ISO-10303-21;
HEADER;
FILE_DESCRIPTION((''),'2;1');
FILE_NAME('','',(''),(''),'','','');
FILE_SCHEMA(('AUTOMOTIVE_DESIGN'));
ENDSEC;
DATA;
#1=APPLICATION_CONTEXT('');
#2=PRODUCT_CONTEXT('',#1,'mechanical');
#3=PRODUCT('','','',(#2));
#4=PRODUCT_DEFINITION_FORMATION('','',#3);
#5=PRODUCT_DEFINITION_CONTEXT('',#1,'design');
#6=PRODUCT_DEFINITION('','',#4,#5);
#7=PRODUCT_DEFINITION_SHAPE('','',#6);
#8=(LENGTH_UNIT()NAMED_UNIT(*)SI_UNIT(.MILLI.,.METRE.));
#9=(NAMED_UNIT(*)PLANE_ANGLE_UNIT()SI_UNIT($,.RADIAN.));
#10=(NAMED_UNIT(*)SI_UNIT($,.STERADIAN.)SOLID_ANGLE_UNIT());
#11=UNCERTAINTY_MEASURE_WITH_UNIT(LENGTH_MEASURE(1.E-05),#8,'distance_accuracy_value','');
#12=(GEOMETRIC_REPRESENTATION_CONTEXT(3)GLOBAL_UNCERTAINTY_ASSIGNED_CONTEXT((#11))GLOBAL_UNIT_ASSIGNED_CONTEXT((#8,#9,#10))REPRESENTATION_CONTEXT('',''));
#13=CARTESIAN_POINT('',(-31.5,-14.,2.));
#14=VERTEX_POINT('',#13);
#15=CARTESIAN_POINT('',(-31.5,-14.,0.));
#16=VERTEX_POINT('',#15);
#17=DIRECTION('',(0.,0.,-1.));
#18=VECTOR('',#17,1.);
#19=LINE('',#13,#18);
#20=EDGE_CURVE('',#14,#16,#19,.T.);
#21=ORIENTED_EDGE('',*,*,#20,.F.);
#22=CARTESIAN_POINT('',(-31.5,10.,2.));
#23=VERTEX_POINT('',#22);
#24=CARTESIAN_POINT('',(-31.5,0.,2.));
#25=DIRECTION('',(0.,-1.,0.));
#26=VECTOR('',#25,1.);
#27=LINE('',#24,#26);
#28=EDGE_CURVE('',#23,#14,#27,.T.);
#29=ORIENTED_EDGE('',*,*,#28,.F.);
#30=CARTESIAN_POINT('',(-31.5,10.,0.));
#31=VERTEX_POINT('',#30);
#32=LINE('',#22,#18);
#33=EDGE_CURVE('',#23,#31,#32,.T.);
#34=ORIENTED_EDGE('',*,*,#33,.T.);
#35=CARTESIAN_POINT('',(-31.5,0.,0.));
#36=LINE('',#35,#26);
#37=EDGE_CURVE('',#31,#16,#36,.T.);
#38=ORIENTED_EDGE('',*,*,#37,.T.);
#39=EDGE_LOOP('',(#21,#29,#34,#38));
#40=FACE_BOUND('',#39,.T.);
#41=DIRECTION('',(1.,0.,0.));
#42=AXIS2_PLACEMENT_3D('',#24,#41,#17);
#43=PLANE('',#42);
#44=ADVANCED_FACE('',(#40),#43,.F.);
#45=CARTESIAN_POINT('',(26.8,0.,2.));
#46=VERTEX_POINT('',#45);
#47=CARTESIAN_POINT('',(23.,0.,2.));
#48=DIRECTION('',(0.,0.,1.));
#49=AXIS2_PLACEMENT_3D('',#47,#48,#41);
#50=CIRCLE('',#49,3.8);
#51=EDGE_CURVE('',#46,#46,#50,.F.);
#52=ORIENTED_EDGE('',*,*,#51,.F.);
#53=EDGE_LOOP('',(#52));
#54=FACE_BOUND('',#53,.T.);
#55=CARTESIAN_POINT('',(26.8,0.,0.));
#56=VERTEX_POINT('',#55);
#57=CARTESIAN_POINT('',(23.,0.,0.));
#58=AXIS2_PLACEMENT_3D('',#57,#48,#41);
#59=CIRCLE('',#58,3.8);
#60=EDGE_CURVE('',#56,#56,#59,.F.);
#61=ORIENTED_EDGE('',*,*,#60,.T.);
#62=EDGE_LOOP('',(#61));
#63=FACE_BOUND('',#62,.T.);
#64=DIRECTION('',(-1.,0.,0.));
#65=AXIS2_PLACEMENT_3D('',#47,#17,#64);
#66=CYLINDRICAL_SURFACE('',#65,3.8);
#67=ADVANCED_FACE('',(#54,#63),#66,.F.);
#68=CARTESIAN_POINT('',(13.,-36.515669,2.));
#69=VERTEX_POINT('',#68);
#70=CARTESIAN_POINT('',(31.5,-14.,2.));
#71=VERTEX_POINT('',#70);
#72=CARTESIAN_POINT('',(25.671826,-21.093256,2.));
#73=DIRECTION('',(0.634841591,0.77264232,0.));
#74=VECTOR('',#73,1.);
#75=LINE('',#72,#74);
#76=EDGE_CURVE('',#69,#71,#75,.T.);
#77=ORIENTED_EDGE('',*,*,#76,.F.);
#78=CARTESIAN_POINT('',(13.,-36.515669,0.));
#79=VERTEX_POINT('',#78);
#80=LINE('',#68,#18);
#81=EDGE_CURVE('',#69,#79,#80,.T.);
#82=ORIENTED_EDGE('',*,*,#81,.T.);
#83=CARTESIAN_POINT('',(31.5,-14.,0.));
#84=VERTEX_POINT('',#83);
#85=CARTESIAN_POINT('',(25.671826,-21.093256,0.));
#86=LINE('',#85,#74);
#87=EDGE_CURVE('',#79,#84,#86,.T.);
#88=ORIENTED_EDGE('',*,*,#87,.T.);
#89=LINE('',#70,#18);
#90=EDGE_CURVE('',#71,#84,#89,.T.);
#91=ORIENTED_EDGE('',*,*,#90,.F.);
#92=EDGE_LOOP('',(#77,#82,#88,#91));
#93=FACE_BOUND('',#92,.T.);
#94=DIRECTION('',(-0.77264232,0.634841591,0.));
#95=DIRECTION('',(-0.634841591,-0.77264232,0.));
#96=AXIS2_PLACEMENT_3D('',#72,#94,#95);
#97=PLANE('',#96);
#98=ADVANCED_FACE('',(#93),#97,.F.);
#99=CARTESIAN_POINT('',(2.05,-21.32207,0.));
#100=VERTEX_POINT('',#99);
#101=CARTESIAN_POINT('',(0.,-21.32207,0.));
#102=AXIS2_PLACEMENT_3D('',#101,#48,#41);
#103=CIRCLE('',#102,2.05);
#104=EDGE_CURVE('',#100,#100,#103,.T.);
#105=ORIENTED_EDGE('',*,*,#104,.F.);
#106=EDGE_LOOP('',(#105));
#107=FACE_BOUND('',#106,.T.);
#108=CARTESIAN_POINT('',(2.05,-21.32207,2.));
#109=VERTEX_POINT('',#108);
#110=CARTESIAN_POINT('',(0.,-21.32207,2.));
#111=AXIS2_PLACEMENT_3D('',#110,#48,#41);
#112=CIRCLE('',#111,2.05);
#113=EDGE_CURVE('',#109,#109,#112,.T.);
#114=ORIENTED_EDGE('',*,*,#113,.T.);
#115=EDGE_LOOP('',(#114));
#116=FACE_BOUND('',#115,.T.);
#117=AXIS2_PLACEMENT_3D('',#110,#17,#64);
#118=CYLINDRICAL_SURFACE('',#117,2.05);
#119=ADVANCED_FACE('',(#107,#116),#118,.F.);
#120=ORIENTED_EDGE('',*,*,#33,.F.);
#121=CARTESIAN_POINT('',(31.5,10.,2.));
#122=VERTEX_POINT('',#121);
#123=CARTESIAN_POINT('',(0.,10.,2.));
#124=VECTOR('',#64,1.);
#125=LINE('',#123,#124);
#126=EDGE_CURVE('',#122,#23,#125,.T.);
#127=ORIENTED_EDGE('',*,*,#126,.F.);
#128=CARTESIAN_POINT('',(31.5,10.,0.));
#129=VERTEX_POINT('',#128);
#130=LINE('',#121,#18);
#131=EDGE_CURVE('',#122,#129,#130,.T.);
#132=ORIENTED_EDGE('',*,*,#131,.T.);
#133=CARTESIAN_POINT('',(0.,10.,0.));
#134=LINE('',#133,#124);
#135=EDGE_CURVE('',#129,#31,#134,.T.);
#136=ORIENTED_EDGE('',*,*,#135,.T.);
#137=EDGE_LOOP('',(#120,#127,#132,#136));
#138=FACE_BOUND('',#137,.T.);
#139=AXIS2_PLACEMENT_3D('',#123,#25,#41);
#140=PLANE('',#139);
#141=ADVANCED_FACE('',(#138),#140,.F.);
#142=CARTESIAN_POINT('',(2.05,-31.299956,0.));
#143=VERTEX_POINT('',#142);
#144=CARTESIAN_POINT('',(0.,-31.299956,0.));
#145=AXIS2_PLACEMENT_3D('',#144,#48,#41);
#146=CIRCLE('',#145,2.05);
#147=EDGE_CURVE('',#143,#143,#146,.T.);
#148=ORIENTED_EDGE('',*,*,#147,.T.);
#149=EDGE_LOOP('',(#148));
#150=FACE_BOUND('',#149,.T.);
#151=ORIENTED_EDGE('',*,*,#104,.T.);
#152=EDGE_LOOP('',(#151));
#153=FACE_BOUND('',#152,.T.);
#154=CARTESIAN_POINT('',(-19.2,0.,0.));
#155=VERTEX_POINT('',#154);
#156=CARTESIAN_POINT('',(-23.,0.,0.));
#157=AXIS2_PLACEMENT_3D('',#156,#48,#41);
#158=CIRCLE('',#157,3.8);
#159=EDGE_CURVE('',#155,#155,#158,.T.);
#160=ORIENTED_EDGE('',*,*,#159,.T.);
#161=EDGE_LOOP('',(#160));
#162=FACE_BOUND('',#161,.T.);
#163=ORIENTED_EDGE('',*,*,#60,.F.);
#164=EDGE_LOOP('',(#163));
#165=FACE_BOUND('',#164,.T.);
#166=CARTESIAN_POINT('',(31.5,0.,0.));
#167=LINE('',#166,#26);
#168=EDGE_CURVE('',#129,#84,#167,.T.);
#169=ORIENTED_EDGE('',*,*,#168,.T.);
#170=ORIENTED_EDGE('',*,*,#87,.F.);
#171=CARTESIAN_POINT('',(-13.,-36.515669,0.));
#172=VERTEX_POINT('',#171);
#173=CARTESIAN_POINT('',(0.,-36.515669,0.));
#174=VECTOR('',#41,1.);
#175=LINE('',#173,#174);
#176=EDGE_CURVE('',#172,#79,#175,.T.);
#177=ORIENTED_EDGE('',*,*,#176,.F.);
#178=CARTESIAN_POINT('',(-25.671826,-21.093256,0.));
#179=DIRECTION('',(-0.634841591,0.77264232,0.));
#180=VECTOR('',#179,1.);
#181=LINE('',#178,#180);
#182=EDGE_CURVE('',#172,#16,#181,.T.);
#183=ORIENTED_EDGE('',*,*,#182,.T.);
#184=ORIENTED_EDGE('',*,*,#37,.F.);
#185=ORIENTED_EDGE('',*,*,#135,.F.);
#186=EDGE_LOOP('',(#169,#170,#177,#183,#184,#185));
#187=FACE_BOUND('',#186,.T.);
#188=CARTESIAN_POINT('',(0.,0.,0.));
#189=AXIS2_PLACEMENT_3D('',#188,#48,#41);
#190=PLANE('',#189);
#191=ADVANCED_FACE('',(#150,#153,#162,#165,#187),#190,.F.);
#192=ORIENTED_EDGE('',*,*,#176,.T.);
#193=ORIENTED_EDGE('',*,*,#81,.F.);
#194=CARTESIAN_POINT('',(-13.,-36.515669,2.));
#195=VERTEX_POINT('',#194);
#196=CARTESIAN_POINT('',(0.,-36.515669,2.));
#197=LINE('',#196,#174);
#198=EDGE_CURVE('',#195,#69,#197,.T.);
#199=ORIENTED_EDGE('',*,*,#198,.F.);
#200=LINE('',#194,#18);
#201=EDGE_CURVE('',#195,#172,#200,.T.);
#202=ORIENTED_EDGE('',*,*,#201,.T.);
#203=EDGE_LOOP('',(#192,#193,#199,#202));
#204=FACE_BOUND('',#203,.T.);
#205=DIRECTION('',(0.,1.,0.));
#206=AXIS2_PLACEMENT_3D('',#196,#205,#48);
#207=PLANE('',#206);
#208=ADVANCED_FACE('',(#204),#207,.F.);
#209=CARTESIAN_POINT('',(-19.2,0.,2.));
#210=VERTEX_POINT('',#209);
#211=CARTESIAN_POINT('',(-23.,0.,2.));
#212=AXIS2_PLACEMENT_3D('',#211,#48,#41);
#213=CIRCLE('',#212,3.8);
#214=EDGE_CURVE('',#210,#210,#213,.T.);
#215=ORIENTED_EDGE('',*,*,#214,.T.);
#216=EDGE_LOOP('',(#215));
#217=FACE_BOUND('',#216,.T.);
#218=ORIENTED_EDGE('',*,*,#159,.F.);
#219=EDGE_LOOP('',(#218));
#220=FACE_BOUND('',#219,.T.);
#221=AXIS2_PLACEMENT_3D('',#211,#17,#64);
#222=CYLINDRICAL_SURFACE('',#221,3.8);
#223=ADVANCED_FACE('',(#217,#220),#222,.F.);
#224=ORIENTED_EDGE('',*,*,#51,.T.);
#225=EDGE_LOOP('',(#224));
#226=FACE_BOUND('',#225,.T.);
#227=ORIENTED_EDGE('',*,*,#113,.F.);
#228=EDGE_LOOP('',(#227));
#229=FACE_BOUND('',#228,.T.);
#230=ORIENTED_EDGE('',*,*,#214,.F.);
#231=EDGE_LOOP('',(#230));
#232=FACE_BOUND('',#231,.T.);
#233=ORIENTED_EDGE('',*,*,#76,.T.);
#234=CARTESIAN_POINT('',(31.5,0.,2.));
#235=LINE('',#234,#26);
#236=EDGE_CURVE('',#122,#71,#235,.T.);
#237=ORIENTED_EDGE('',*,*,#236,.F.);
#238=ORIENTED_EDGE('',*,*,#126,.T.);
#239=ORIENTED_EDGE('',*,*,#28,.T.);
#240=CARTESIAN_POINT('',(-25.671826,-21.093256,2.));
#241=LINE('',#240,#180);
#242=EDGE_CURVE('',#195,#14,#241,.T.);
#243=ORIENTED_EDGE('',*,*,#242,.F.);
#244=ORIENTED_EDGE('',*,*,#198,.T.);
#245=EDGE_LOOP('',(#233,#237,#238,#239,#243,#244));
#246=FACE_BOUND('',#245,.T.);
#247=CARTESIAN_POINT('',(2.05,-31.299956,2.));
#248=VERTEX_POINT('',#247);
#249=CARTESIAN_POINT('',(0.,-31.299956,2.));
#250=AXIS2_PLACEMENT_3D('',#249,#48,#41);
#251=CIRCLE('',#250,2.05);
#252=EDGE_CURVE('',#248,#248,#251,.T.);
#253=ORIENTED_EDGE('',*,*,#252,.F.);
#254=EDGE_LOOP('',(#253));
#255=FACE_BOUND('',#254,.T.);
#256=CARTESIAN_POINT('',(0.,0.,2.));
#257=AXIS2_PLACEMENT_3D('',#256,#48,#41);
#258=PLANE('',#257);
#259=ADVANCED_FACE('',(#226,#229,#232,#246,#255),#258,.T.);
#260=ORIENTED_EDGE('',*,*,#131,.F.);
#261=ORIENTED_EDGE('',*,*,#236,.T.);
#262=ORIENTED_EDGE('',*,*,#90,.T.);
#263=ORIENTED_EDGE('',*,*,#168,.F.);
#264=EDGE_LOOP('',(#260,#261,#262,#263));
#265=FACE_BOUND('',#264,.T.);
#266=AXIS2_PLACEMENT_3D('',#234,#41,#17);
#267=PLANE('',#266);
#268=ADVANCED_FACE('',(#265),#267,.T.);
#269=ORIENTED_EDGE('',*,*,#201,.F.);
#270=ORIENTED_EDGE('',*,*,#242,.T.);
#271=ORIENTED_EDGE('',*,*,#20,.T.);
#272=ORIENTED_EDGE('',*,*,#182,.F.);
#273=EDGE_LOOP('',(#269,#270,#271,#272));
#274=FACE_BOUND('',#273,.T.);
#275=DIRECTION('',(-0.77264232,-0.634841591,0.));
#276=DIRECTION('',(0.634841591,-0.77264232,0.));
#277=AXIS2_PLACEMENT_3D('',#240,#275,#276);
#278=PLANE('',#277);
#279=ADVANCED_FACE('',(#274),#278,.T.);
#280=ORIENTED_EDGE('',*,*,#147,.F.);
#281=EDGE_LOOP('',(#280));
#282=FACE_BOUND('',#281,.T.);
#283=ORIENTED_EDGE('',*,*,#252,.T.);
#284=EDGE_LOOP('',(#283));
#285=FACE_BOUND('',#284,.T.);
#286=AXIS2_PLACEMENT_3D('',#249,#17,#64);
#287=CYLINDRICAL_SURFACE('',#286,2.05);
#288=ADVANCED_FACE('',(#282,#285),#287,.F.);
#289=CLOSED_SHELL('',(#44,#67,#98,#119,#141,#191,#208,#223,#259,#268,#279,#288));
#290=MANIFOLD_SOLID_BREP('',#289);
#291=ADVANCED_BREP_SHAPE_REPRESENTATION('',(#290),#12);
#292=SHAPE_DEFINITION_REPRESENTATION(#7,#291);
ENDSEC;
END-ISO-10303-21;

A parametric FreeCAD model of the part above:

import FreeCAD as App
import Part
import Sketcher
from FreeCAD import Vector

doc = App.newDocument("Part")
params = doc.addObject("Spreadsheet::Sheet", "Params")
for row, (alias, value) in enumerate([
    ("sketch1_diameter", "7.6 mm"),
    ("sketch1_width", "63 mm"),
    ("sketch1_height", "24 mm"),
    ("pad1_length", "2 mm"),
    ("sketch2_diameter", "4.1 mm"),
    ("sketch2_width", "63 mm"),
    ("sketch2_width2", "26 mm"),
    ("pad2_length", "2 mm"),
], start=1):
    params.set(f"A{row}", alias)
    params.set(f"B{row}", "=" + value)
    params.setAlias(f"B{row}", alias)

body = doc.addObject("PartDesign::Body", "Body")

sketch1 = body.newObject("Sketcher::SketchObject", "Sketch")
sketch1.AttachmentSupport = (doc.getObject("XY_Plane"), [""])
sketch1.MapMode = "FlatFace"
sketch1.addGeometry([
    Part.LineSegment(Vector(-31.5, 10, 0), Vector(-31.5, -14, 0)),
    Part.LineSegment(Vector(-31.5, -14, 0), Vector(31.5, -14, 0)),
    Part.LineSegment(Vector(31.5, -14, 0), Vector(31.5, 10, 0)),
    Part.LineSegment(Vector(31.5, 10, 0), Vector(-31.5, 10, 0)),
    Part.Circle(Vector(-23, 0, 0), Vector(0, 0, 1), 3.8),
    Part.Circle(Vector(23, 0, 0), Vector(0, 0, 1), 3.8),
], False)
sketch1.addConstraint([
    Sketcher.Constraint("Coincident", 0, 2, 1, 1),
    Sketcher.Constraint("Coincident", 1, 2, 2, 1),
    Sketcher.Constraint("Coincident", 2, 2, 3, 1),
    Sketcher.Constraint("Coincident", 3, 2, 0, 1),
    Sketcher.Constraint("Vertical", 0),
    Sketcher.Constraint("Horizontal", 1),
    Sketcher.Constraint("Vertical", 2),
    Sketcher.Constraint("Horizontal", 3),
    Sketcher.Constraint("Equal", 4, 5),
    Sketcher.Constraint("Symmetric", 4, 3, 5, 3, -1, 1),
    Sketcher.Constraint("PointOnObject", 4, 3, -1),
    Sketcher.Constraint("Diameter", 4, 7.6),
    Sketcher.Constraint("DistanceX", 1, 1, 1, 2, 63.0),
    Sketcher.Constraint("DistanceY", 0, 2, 0, 1, 24.0),
    Sketcher.Constraint("DistanceX", 4, 3, -1, 1, 23.0),
    Sketcher.Constraint("DistanceY", 0, 2, -1, 1, 14.0),
    Sketcher.Constraint("DistanceX", 0, 2, -1, 1, 31.5),
])
sketch1.setExpression("Constraints[11]", "Params.sketch1_diameter")
sketch1.setExpression("Constraints[12]", "Params.sketch1_width")
sketch1.setExpression("Constraints[13]", "Params.sketch1_height")
pad1 = body.newObject("PartDesign::Pad", "Pad")
pad1.Profile = sketch1
pad1.setExpression("Length", "Params.pad1_length")

sketch2 = body.newObject("Sketcher::SketchObject", "Sketch001")
sketch2.AttachmentSupport = (doc.getObject("XY_Plane"), [""])
sketch2.MapMode = "FlatFace"
sketch2.addGeometry([
    Part.LineSegment(Vector(13, -36.5, 0), Vector(31.5, -14, 0)),
    Part.LineSegment(Vector(31.5, -14, 0), Vector(-31.5, -14, 0)),
    Part.LineSegment(Vector(-31.5, -14, 0), Vector(-13, -36.5, 0)),
    Part.LineSegment(Vector(-13, -36.5, 0), Vector(13, -36.5, 0)),
    Part.Circle(Vector(0, -31.3, 0), Vector(0, 0, 1), 2),
    Part.Circle(Vector(0, -21.3, 0), Vector(0, 0, 1), 2),
], False)
sketch2.addConstraint([
    Sketcher.Constraint("Coincident", 0, 2, 1, 1),
    Sketcher.Constraint("Coincident", 1, 2, 2, 1),
    Sketcher.Constraint("Coincident", 2, 2, 3, 1),
    Sketcher.Constraint("Coincident", 3, 2, 0, 1),
    Sketcher.Constraint("Horizontal", 1),
    Sketcher.Constraint("Horizontal", 3),
    Sketcher.Constraint("Equal", 4, 5),
    Sketcher.Constraint("PointOnObject", 4, 3, -2),
    Sketcher.Constraint("PointOnObject", 5, 3, -2),
    Sketcher.Constraint("Equal", 0, 2),
    Sketcher.Constraint("Diameter", 4, 4.1),
    Sketcher.Constraint("DistanceX", 1, 2, 1, 1, 63.0),
    Sketcher.Constraint("DistanceX", 3, 1, 3, 2, 26.0),
    Sketcher.Constraint("DistanceY", 0, 2, -1, 1, 14.0),
    Sketcher.Constraint("DistanceX", 2, 2, -1, 1, 13.0),
    Sketcher.Constraint("DistanceY", 2, 2, 5, 3, 15.193599),
    Sketcher.Constraint("DistanceY", 5, 3, -1, 1, 21.32207),
    Sketcher.Constraint("DistanceY", 4, 3, -1, 1, 31.299956),
])
sketch2.setExpression("Constraints[10]", "Params.sketch2_diameter")
sketch2.setExpression("Constraints[11]", "Params.sketch2_width")
sketch2.setExpression("Constraints[12]", "Params.sketch2_width2")
pad2 = body.newObject("PartDesign::Pad", "Pad001")
pad2.Profile = sketch2
pad2.setExpression("Length", "Params.pad2_length")

doc.recompute()
